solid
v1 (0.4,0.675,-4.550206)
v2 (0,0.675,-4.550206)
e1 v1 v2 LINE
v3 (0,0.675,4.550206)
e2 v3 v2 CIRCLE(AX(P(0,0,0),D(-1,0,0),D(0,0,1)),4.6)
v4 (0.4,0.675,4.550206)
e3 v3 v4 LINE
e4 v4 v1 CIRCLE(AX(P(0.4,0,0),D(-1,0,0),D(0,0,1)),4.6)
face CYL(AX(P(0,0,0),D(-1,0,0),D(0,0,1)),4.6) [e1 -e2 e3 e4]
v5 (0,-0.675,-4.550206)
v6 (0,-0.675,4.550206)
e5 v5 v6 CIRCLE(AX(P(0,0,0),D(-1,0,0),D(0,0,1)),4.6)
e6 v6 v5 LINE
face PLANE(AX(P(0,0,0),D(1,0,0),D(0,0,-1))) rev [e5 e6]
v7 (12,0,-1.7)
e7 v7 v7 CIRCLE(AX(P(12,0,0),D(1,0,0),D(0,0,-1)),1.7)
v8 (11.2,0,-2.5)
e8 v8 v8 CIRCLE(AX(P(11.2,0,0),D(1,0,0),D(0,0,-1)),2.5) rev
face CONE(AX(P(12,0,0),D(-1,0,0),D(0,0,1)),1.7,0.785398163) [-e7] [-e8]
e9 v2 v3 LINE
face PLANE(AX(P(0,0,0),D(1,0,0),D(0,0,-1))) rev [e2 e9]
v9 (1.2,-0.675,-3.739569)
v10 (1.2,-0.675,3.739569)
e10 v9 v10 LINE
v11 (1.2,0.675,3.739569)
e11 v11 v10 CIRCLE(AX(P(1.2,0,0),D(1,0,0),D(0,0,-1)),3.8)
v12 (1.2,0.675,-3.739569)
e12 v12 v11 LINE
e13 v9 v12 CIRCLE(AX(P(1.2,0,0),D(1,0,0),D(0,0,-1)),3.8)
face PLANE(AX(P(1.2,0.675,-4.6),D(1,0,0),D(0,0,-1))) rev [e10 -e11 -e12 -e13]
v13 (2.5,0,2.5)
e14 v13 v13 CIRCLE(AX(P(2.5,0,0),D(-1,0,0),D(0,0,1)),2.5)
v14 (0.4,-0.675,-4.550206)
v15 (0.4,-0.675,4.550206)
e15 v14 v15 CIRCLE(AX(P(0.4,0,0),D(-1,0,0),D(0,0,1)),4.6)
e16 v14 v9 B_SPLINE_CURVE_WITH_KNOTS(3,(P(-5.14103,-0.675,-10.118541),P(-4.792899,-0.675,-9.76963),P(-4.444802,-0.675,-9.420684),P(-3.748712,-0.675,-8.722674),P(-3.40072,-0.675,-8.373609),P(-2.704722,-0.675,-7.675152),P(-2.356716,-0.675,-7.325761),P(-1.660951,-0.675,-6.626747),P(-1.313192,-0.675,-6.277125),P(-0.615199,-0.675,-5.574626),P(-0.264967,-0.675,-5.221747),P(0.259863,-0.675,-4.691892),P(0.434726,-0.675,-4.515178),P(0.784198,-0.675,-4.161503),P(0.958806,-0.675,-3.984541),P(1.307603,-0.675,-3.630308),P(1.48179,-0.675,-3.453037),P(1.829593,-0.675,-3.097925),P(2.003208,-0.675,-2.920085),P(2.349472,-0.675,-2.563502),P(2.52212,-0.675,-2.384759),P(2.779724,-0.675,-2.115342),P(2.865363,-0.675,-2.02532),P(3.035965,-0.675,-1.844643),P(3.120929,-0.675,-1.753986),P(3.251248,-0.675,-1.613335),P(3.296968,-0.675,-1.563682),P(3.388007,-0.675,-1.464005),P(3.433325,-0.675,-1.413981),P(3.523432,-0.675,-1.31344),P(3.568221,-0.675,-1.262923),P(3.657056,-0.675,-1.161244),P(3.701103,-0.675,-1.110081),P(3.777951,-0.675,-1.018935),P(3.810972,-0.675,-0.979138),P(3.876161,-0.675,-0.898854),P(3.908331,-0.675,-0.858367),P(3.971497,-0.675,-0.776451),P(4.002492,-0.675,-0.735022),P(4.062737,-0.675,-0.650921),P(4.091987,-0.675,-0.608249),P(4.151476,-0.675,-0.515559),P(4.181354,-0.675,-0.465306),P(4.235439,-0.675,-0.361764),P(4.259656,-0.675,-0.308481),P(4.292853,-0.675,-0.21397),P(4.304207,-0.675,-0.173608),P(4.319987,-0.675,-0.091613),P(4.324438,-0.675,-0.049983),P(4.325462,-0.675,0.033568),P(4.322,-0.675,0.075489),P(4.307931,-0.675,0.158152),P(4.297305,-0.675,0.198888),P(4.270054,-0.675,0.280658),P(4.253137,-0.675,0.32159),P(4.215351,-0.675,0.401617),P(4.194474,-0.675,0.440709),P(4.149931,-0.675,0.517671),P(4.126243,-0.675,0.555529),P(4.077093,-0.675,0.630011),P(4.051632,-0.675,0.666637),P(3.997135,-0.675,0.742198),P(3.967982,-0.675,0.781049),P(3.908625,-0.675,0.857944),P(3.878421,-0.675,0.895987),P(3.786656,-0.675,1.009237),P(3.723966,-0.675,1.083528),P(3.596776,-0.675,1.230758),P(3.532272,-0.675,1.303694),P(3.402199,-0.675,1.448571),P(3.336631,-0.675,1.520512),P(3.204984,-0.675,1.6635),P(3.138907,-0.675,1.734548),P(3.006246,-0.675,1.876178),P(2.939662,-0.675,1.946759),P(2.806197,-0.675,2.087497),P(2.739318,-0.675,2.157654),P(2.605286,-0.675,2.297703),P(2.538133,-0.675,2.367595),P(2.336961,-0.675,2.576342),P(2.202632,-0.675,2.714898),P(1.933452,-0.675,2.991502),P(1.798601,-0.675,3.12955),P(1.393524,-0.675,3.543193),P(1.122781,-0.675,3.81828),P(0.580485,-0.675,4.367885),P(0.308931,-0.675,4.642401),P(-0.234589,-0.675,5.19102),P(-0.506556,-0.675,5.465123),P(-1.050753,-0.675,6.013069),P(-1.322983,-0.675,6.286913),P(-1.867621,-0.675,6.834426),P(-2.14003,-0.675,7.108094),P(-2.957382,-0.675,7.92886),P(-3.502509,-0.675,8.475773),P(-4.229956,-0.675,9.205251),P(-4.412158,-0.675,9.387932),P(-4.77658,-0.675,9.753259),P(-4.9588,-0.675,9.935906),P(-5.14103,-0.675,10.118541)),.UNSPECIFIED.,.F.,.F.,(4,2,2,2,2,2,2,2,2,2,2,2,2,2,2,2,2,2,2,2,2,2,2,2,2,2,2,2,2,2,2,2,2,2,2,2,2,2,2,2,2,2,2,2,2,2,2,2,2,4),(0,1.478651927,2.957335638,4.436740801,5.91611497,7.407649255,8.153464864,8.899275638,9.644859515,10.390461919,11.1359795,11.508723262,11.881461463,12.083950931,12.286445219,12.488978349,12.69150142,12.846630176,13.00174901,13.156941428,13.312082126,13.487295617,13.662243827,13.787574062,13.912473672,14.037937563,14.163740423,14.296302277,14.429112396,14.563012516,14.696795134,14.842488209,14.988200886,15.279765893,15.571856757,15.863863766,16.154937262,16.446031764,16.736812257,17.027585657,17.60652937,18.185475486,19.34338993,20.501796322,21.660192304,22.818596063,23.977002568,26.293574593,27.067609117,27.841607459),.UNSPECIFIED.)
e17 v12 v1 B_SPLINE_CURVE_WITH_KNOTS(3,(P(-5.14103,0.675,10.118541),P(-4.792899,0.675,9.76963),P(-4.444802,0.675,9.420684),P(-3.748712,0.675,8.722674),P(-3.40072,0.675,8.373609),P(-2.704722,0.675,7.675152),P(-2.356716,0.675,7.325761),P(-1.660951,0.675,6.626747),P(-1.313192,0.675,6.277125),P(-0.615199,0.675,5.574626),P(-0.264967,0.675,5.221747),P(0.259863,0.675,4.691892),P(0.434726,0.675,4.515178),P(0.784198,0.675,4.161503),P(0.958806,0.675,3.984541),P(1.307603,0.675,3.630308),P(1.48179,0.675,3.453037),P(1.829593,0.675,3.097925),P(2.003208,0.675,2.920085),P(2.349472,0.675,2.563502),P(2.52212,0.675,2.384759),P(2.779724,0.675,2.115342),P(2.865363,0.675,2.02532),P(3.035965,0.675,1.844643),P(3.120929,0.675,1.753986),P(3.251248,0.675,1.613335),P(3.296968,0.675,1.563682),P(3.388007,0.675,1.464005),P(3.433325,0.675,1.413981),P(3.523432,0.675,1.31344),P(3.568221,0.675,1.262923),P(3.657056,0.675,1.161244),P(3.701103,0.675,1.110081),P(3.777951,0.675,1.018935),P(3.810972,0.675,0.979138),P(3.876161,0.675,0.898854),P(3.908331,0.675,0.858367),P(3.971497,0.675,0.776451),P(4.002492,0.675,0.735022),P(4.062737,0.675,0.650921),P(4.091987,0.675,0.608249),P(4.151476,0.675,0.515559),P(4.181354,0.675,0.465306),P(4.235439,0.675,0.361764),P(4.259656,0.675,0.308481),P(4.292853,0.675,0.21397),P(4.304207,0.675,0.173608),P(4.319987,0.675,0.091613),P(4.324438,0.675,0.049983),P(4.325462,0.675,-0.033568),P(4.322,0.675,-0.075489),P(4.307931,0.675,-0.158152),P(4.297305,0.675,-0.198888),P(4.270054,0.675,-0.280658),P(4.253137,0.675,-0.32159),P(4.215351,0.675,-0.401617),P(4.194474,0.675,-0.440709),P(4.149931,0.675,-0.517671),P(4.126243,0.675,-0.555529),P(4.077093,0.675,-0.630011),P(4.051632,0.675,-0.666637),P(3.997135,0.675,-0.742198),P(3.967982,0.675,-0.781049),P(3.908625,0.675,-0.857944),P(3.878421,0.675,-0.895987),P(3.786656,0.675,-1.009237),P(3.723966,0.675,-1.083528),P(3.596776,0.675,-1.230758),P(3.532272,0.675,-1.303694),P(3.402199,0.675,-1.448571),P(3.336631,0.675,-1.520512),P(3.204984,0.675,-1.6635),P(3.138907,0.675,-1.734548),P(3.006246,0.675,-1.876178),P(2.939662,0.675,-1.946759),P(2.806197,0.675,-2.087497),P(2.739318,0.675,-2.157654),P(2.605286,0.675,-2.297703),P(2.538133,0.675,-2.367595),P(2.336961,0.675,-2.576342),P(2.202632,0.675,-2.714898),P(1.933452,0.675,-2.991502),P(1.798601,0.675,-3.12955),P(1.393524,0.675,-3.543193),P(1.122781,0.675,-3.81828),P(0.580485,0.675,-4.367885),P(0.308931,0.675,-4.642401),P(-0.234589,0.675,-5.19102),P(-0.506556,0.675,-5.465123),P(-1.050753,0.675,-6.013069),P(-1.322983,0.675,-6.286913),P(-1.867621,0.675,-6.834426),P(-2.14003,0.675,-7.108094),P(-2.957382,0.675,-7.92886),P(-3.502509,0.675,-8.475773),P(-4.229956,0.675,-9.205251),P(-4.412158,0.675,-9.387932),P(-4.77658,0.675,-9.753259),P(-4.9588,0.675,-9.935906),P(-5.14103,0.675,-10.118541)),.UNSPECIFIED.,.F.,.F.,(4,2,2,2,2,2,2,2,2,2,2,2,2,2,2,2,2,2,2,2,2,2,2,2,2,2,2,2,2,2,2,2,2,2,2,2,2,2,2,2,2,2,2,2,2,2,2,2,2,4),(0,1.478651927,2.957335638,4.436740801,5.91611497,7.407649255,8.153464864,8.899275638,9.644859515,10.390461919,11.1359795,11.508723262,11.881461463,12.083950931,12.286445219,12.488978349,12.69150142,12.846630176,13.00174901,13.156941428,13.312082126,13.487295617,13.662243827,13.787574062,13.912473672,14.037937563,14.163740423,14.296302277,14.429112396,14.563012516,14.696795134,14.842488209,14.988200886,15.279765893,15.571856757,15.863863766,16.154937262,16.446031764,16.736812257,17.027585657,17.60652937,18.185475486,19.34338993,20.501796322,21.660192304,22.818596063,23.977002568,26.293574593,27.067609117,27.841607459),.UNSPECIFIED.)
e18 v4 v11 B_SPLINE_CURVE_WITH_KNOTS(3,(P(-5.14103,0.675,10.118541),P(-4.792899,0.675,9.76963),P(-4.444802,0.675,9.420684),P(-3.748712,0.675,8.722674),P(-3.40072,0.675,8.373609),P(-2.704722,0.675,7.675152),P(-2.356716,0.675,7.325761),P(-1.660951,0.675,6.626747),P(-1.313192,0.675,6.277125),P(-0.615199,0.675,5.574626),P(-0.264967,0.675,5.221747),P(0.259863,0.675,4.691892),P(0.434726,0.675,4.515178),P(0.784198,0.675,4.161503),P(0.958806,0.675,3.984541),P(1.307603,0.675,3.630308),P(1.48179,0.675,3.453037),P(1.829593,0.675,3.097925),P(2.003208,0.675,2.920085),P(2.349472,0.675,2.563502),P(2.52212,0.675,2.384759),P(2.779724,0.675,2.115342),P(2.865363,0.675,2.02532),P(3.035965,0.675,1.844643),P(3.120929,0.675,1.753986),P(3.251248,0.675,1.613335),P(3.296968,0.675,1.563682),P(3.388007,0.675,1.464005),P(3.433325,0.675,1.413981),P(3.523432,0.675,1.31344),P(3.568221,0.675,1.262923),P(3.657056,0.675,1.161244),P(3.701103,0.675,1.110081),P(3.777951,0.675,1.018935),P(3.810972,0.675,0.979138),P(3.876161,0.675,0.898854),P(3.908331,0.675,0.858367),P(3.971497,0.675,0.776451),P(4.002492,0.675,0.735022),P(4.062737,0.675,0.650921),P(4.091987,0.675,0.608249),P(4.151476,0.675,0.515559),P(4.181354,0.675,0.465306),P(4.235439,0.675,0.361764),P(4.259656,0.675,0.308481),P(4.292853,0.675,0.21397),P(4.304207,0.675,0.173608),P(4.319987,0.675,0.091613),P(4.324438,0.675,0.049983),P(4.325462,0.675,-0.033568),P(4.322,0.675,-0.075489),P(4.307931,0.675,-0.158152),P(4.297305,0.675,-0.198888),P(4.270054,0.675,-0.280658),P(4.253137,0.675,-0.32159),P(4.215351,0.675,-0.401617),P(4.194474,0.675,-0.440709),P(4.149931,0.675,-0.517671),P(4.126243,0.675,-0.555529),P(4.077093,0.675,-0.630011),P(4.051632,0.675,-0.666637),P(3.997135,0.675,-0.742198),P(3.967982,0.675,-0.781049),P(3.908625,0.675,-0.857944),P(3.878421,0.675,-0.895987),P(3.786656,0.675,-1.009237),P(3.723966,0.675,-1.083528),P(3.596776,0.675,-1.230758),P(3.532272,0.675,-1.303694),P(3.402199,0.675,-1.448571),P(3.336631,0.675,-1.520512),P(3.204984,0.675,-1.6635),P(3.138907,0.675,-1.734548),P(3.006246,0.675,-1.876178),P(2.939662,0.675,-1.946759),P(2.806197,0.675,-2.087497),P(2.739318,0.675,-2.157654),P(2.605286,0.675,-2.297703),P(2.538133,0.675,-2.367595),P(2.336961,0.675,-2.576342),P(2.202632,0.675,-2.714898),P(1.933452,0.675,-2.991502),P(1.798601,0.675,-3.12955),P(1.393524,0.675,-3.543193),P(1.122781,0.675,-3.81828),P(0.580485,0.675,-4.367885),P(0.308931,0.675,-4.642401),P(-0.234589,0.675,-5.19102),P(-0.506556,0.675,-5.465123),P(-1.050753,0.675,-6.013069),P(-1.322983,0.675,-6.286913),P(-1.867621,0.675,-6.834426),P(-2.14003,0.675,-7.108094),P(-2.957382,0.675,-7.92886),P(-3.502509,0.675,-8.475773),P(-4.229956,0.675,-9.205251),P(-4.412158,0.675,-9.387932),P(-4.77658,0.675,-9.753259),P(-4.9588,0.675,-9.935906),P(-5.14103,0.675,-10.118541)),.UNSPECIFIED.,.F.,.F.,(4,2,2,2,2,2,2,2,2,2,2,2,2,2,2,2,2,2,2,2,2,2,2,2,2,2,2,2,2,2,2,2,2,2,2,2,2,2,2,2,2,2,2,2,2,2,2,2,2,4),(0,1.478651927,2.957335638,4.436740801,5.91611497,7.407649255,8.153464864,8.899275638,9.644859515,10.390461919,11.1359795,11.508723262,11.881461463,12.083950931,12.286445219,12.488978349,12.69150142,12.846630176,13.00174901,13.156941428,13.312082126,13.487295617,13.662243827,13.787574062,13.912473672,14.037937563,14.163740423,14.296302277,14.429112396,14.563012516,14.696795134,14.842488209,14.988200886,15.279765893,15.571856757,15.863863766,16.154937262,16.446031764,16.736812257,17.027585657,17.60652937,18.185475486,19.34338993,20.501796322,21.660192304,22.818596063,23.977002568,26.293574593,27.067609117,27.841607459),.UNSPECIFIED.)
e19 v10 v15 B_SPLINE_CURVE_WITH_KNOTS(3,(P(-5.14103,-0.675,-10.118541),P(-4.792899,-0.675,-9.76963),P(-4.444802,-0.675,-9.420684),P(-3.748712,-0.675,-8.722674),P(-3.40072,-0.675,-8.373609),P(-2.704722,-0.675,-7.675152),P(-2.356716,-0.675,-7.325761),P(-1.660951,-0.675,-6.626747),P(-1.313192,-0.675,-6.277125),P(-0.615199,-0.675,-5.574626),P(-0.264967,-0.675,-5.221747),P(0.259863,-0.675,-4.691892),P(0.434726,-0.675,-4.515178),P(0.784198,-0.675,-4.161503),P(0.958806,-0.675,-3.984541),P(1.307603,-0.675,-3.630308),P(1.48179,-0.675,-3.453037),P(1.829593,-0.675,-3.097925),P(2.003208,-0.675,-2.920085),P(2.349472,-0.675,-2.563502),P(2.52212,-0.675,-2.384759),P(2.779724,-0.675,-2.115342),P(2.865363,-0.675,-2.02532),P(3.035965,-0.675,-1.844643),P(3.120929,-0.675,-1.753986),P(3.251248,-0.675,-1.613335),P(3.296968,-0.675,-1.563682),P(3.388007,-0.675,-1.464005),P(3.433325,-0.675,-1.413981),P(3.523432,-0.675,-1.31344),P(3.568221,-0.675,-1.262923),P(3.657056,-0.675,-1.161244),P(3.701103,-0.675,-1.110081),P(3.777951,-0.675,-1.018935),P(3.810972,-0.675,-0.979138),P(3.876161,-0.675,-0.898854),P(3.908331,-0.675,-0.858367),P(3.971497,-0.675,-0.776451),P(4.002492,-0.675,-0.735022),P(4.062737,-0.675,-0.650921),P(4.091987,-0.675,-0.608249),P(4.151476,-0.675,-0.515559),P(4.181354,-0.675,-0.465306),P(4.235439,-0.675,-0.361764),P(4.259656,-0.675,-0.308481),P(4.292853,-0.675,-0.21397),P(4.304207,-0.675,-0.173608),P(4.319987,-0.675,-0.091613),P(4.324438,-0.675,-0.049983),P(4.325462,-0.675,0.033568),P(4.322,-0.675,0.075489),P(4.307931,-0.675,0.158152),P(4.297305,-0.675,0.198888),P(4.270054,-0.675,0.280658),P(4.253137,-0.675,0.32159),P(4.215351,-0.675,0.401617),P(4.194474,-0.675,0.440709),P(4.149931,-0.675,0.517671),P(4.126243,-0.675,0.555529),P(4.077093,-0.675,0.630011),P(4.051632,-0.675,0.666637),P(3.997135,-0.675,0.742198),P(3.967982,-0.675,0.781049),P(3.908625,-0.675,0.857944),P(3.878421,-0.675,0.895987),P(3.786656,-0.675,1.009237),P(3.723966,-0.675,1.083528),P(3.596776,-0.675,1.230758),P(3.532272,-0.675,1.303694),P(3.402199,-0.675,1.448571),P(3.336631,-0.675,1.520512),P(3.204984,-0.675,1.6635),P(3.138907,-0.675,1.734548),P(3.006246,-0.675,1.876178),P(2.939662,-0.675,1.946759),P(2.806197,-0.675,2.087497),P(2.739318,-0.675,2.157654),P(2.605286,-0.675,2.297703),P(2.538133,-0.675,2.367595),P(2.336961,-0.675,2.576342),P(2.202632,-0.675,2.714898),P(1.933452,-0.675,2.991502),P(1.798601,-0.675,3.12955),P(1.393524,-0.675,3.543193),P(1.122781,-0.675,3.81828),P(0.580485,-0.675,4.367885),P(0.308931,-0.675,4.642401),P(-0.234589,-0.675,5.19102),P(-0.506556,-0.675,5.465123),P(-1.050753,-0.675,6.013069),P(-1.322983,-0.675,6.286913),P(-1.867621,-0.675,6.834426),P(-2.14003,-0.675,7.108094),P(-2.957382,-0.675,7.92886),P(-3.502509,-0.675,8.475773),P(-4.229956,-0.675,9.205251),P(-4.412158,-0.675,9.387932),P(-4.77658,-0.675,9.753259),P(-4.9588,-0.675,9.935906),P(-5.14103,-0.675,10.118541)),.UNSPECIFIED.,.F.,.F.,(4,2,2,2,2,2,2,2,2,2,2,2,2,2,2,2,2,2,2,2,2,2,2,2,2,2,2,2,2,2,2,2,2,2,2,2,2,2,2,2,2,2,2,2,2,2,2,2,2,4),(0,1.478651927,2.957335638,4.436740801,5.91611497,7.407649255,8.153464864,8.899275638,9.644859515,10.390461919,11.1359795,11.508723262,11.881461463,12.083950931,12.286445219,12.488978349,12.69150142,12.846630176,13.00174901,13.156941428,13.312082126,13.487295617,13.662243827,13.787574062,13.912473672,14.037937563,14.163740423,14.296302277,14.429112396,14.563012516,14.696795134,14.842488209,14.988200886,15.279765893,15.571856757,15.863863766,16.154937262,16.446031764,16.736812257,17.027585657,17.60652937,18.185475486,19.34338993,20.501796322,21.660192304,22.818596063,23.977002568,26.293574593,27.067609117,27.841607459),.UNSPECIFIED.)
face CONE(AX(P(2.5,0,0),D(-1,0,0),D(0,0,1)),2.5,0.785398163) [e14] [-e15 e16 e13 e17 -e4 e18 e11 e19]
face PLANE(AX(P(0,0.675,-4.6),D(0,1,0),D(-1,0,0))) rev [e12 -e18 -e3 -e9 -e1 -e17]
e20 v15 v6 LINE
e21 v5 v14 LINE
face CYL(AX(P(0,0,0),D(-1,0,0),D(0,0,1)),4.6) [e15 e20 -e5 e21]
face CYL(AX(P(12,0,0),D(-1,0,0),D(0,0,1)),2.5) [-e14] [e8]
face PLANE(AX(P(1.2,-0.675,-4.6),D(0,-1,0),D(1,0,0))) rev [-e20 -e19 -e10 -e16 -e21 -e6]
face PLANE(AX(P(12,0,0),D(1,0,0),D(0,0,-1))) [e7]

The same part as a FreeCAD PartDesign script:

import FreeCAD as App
import Part
import Sketcher

V = App.Vector
Q = App.Units.Quantity


def edges_at(feature, points):
    """Names of the edges that pass closest to the given points."""
    edges = feature.Shape.Edges
    near = lambda p: min(range(len(edges)), key=lambda i: edges[i].distToShape(Part.Vertex(*p))[0])
    return sorted({f"Edge{near(p) + 1}" for p in points})


def add_polygon(sketch, points):
    """Adds a closed chain of lines whose ends are joined by coincident constraints."""
    first, n = sketch.GeometryCount, len(points)
    for a, b in zip(points, points[1:] + points[:1]):
        sketch.addGeometry(Part.LineSegment(App.Vector(*a, 0), App.Vector(*b, 0)), False)
    for i in range(n):
        sketch.addConstraint(Sketcher.Constraint("Coincident", first + i, 2, first + (i + 1) % n, 1))

doc = App.newDocument("Part")
body = doc.addObject("PartDesign::Body", "Body")

sketch1 = body.newObject("Sketcher::SketchObject", "Sketch")
sketch1.AttachmentSupport = (doc.getObject("YZ_Plane"), [""])
sketch1.MapMode = "FlatFace"
sketch1.addGeometry(Part.Circle(V(0, 0, 0), V(0, 0, 1), 2.5), False)
sketch1.addConstraint(Sketcher.Constraint("Coincident", 0, 3, -1, 1))
sketch1.addConstraint(Sketcher.Constraint("Diameter", 0, 5.0))
pad1 = body.newObject("PartDesign::Pad", "Pad")
pad1.Profile = sketch1
pad1.Length = 12
doc.recompute()

chamfer = body.newObject("PartDesign::Chamfer", "Chamfer")
chamfer.Base = (pad1, edges_at(pad1, [(12, 0, 2.5)]))
chamfer.Size = 0.8

sketch2 = body.newObject("Sketcher::SketchObject", "Sketch001")
sketch2.AttachmentSupport = (doc.getObject("XY_Plane"), [""])
sketch2.MapMode = "FlatFace"
add_polygon(sketch2, [(0.4, 4.6), (0, 4.6), (0, 0), (2.5, 0), (2.5, 2.5)])
sketch2.addConstraint(Sketcher.Constraint("Horizontal", 0))
sketch2.addConstraint(Sketcher.Constraint("Vertical", 1))
sketch2.addConstraint(Sketcher.Constraint("Horizontal", 2))
sketch2.addConstraint(Sketcher.Constraint("Vertical", 3))
sketch2.addConstraint(Sketcher.Constraint("Coincident", 1, 2, -1, 1))
sketch2.addConstraint(Sketcher.Constraint("Equal", 2, 3))
sketch2.addConstraint(Sketcher.Constraint("Angle", 4, Q("135 deg")))
sketch2.addConstraint(Sketcher.Constraint("DistanceX", 0, 2, 0, 1, 0.4))
sketch2.addConstraint(Sketcher.Constraint("DistanceX", 2, 1, 2, 2, 2.5))
revolution = body.newObject("PartDesign::Revolution", "Revolution")
revolution.Profile = sketch2
revolution.ReferenceAxis = (sketch2, ["H_Axis"])
revolution.Angle = 360

sketch3 = body.newObject("Sketcher::SketchObject", "Sketch002")
sketch3.AttachmentSupport = (doc.getObject("XY_Plane"), [""])
sketch3.MapMode = "FlatFace"
add_polygon(sketch3, [(0, 0.7), (0, -0.7), (1.2, -0.7), (1.2, 0.7)])
sketch3.addConstraint(Sketcher.Constraint("Vertical", 0))
sketch3.addConstraint(Sketcher.Constraint("Horizontal", 1))
sketch3.addConstraint(Sketcher.Constraint("Vertical", 2))
sketch3.addConstraint(Sketcher.Constraint("Horizontal", 3))
sketch3.addConstraint(Sketcher.Constraint("Symmetric", 0, 2, 3, 2, -1, 1))
sketch3.addConstraint(Sketcher.Constraint("DistanceX", 1, 1, 1, 2, 1.2))
sketch3.addConstraint(Sketcher.Constraint("DistanceY", 0, 2, 0, 1, 1.35))
pocket1 = body.newObject("PartDesign::Pocket", "Pocket")
pocket1.Profile = sketch3
pocket1.Type = "ThroughAll"
pocket1.Midplane = True

doc.recompute()
